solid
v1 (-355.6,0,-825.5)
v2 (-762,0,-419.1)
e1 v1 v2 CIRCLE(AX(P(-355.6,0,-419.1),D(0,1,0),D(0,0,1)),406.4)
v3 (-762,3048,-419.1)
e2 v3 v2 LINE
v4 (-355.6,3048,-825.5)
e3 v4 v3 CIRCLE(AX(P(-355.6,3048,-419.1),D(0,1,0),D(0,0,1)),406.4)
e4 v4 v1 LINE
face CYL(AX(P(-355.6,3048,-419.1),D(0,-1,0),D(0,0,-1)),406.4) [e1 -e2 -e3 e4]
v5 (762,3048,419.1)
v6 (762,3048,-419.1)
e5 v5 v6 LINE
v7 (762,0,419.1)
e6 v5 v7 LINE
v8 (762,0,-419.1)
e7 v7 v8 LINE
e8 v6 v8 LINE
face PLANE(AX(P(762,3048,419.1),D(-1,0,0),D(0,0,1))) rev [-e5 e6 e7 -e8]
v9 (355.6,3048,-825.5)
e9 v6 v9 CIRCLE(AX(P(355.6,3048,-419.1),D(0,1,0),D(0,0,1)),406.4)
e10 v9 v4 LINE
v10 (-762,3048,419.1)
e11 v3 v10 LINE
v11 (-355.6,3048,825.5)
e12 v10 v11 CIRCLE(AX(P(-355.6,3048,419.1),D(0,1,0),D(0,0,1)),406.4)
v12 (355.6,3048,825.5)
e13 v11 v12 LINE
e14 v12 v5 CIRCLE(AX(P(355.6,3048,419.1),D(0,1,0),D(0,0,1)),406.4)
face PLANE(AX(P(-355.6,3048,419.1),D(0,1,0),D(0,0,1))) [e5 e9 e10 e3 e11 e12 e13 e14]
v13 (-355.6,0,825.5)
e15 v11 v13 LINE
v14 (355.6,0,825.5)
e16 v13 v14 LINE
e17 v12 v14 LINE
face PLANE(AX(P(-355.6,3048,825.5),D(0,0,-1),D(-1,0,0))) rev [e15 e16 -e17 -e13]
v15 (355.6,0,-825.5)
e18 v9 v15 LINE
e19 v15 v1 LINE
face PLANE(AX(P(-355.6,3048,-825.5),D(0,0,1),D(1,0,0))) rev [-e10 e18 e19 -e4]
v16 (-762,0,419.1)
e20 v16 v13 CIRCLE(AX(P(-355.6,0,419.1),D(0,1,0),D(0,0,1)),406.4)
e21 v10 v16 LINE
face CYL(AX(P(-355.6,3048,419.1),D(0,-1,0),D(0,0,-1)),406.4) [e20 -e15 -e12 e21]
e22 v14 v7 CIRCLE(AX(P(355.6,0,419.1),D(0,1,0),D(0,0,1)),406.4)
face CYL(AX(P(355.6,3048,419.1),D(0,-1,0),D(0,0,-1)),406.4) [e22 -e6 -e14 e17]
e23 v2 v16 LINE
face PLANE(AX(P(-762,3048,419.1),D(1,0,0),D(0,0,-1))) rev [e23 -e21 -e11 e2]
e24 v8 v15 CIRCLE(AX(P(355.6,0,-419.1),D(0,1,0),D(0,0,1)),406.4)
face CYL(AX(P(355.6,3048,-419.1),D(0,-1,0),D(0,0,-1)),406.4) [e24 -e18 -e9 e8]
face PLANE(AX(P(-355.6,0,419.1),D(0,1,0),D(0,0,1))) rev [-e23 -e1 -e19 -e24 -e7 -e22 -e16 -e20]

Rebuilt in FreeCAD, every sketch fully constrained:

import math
import FreeCAD as App
import Part
import Sketcher
Q = App.Units.Quantity

doc = App.newDocument("Part")
body = doc.addObject("PartDesign::Body", "Body")

# Sketch on XZ plane
sketch1 = doc.addObject("Sketcher::SketchObject", "Sketch")
body.addObject(sketch1)
sketch1.AttachmentSupport = (doc.XZ_Plane, [""])
sketch1.MapMode = "FlatFace"
sketch1.addGeometry([
    Part.LineSegment(App.Vector(-356, 826, 0), App.Vector(356, 826, 0)),  # 0
    Part.ArcOfCircle(Part.Circle(App.Vector(356, 419, 0), App.Vector(0, 0, 1), 406), math.radians(0), math.radians(90)),  # 1
    Part.LineSegment(App.Vector(762, 419, 0), App.Vector(762, -419, 0)),  # 2
    Part.ArcOfCircle(Part.Circle(App.Vector(356, -419, 0), App.Vector(0, 0, 1), 406), math.radians(-90), math.radians(0)),  # 3
    Part.LineSegment(App.Vector(356, -826, 0), App.Vector(-356, -826, 0)),  # 4
    Part.ArcOfCircle(Part.Circle(App.Vector(-356, -419, 0), App.Vector(0, 0, 1), 406), math.radians(-180), math.radians(-90)),  # 5
    Part.LineSegment(App.Vector(-762, -419, 0), App.Vector(-762, 419, 0)),  # 6
    Part.ArcOfCircle(Part.Circle(App.Vector(-356, 419, 0), App.Vector(0, 0, 1), 406), math.radians(90), math.radians(180)),  # 7
], False)
sketch1.addConstraint([
    Sketcher.Constraint("Tangent", 0, 2, 1, 2),
    Sketcher.Constraint("Tangent", 1, 1, 2, 1),
    Sketcher.Constraint("Tangent", 2, 2, 3, 2),
    Sketcher.Constraint("Tangent", 3, 1, 4, 1),
    Sketcher.Constraint("Tangent", 4, 2, 5, 2),
    Sketcher.Constraint("Tangent", 5, 1, 6, 1),
    Sketcher.Constraint("Tangent", 6, 2, 7, 2),
    Sketcher.Constraint("Tangent", 7, 1, 0, 1),
    Sketcher.Constraint("Horizontal", 0),
    Sketcher.Constraint("Vertical", 2),
    Sketcher.Constraint("Horizontal", 4),
    Sketcher.Constraint("Vertical", 6),
    Sketcher.Constraint("Equal", 1, 3),
    Sketcher.Constraint("Equal", 3, 5),
    Sketcher.Constraint("Equal", 5, 7),
    Sketcher.Constraint("Symmetric", 1, 3, 5, 3, -1, 1),
    Sketcher.Constraint("Radius", 1, Q("16 in")),
    Sketcher.Constraint("DistanceX", 0, 1, 0, 2, Q("28 in")),
    Sketcher.Constraint("DistanceY", 2, 2, 2, 1, Q("33 in")),
])
pad1 = doc.addObject("PartDesign::Pad", "Pad")
body.addObject(pad1)
pad1.Profile = sketch1
pad1.Length = Q("120 in")
pad1.Reversed = True

doc.recompute()
